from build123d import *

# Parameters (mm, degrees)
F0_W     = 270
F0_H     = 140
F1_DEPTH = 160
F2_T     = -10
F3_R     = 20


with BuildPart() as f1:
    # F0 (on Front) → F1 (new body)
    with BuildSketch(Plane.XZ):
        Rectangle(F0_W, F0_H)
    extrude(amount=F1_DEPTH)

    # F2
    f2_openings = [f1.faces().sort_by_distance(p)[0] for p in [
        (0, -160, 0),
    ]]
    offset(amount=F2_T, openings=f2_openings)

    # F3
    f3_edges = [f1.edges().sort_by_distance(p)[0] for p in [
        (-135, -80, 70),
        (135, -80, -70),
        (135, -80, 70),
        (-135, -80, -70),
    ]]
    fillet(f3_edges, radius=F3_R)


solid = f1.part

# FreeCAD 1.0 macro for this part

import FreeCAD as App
import Part
import Sketcher
Q = App.Units.Quantity


def edges_at(feature, points):
    """Names of the edges that pass closest to the given points."""
    edges = feature.Shape.Edges
    near = lambda p: min(range(len(edges)), key=lambda i: edges[i].distToShape(Part.Vertex(*p))[0])
    return sorted({f"Edge{near(p) + 1}" for p in points})


def faces_at(feature, points):
    """Names of the faces that lie closest to the given points."""
    faces = feature.Shape.Faces
    near = lambda p: min(range(len(faces)), key=lambda i: faces[i].distToShape(Part.Vertex(*p))[0])
    return sorted({f"Face{near(p) + 1}" for p in points})


def add_polygon(sketch, points):
    """Adds a closed chain of lines whose ends are joined by coincident constraints."""
    first, n = sketch.GeometryCount, len(points)
    for a, b in zip(points, points[1:] + points[:1]):
        sketch.addGeometry(Part.LineSegment(App.Vector(*a, 0), App.Vector(*b, 0)), False)
    for i in range(n):
        sketch.addConstraint(Sketcher.Constraint("Coincident", first + i, 2, first + (i + 1) % n, 1))

doc = App.newDocument("Part")
body = doc.addObject("PartDesign::Body", "Body")

# Sketch on XZ plane
sketch1 = body.newObject("Sketcher::SketchObject", "Sketch")
sketch1.AttachmentSupport = (doc.getObject("XZ_Plane"), [""])
sketch1.MapMode = "FlatFace"
add_polygon(sketch1, [(-135, 70), (-135, -70), (135, -70), (135, 70)])  # lines 0-3
sketch1.addConstraint([
    Sketcher.Constraint("Vertical", 0),
    Sketcher.Constraint("Horizontal", 1),
    Sketcher.Constraint("Vertical", 2),
    Sketcher.Constraint("Horizontal", 3),
    Sketcher.Constraint("Symmetric", 0, 2, 2, 2, -1, 1),
    Sketcher.Constraint("DistanceX", 1, 1, 1, 2, Q("270 mm")),
    Sketcher.Constraint("DistanceY", 0, 2, 0, 1, Q("140 mm")),
])
pad1 = body.newObject("PartDesign::Pad", "Pad")
pad1.Profile = sketch1
pad1.Length = 160
doc.recompute()

thickness = body.newObject("PartDesign::Thickness", "Thickness")
thickness.Base = (pad1, faces_at(pad1, [(0, -160, 0)]))
thickness.Value = 10
thickness.Reversed = True
thickness.Join = "Arc"
doc.recompute()

fillet = body.newObject("PartDesign::Fillet", "Fillet")
fillet.Base = (thickness, edges_at(thickness, [
    (-135, -80, 70),
    (135, -80, -70),
    (135, -80, 70),
    (-135, -80, -70),
]))
fillet.Radius = 20

doc.recompute()
